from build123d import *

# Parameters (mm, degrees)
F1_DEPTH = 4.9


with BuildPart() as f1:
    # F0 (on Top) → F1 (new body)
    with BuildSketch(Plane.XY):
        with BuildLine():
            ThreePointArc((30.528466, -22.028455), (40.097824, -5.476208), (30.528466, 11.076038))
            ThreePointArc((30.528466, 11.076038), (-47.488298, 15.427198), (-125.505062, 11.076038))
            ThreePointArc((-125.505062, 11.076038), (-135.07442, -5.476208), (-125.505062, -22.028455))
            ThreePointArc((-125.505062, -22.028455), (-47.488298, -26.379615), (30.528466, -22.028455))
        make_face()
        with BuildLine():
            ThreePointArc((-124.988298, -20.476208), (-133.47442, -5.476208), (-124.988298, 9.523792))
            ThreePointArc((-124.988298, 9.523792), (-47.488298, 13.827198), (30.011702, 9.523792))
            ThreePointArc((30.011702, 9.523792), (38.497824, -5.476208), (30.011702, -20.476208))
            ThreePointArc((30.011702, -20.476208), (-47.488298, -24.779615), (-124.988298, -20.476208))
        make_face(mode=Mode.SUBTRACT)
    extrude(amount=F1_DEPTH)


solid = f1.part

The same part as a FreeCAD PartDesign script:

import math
import FreeCAD as App
import Part
import Sketcher

V = App.Vector

doc = App.newDocument("Part")
body = doc.addObject("PartDesign::Body", "Body")

sketch1 = body.newObject("Sketcher::SketchObject", "Sketch")
sketch1.AttachmentSupport = (doc.getObject("XY_Plane"), [""])
sketch1.MapMode = "FlatFace"
sketch1.addGeometry([
    Part.ArcOfCircle(Part.Circle(V(20.997824, -5.476209, 0), V(0, 0, 1), 19.1), math.radians(-60.06703), math.radians(60.06703)),
    Part.ArcOfCircle(Part.Circle(V(-47.488298, -686.172842, 0), V(0, 0, 1), 701.60004), math.radians(83.6156), math.radians(96.3844)),
    Part.ArcOfCircle(Part.Circle(V(-115.97442, -5.476209, 0), V(0, 0, 1), 19.1), math.radians(119.93297), math.radians(240.06703)),
    Part.ArcOfCircle(Part.Circle(V(-47.488298, 675.220425, 0), V(0, 0, 1), 701.60004), math.radians(-96.3844), math.radians(-83.6156)),
    Part.ArcOfCircle(Part.Circle(V(-47.488298, 675.220328, 0), V(0, 0, 1), 699.999943), math.radians(-96.356493), math.radians(-83.643507)),
    Part.ArcOfCircle(Part.Circle(V(-115.97442, -5.476208, 0), V(0, 0, 1), 17.5), math.radians(121.002718), math.radians(238.997282)),
    Part.ArcOfCircle(Part.Circle(V(-47.488298, -686.172907, 0), V(0, 0, 1), 700.000105), math.radians(83.643508), math.radians(96.356492)),
    Part.ArcOfCircle(Part.Circle(V(20.997824, -5.476208, 0), V(0, 0, 1), 17.5), math.radians(-58.997282), math.radians(58.997282)),
], False)
sketch1.addConstraint([
    Sketcher.Constraint("Coincident", 0, 2, 1, 1),
    Sketcher.Constraint("Coincident", 1, 2, 2, 1),
    Sketcher.Constraint("Coincident", 2, 2, 3, 1),
    Sketcher.Constraint("Coincident", 3, 2, 0, 1),
    Sketcher.Constraint("Coincident", 4, 1, 5, 2),
    Sketcher.Constraint("Coincident", 5, 1, 6, 2),
    Sketcher.Constraint("Coincident", 6, 1, 7, 2),
    Sketcher.Constraint("Coincident", 7, 1, 4, 2),
    Sketcher.Constraint("Coincident", 5, 3, 2, 3),
    Sketcher.Constraint("Coincident", 7, 3, 0, 3),
    Sketcher.Constraint("Radius", 0, 19.1),
    Sketcher.Constraint("Radius", 2, 19.1),
    Sketcher.Constraint("Radius", 5, 17.5),
    Sketcher.Constraint("Radius", 7, 17.5),
    Sketcher.Constraint("DistanceY", 4, 1, 2, 3, 14.999999),
    Sketcher.Constraint("DistanceY", 4, 1, 0, 3, 14.999999),
    Sketcher.Constraint("DistanceY", 5, 3, 5, 1, 15.0),
    Sketcher.Constraint("DistanceY", 7, 3, 6, 1, 15.0),
    Sketcher.Constraint("DistanceY", 7, 1, 0, 3, 15.0),
    Sketcher.Constraint("Radius", 1, 701.60004),
    Sketcher.Constraint("Radius", 3, 701.60004),
    Sketcher.Constraint("Radius", 4, 699.999943),
    Sketcher.Constraint("Radius", 6, 700.000105),
    Sketcher.Constraint("DistanceX", 5, 1, -1, 1, 124.988298),
    Sketcher.Constraint("DistanceY", 6, 3, 0, 3, 680.696698),
    Sketcher.Constraint("DistanceY", 0, 3, -1, 1, 5.476209),
    Sketcher.Constraint("DistanceY", 1, 3, -1, 1, 686.172842),
    Sketcher.Constraint("DistanceY", -1, 1, 0, 2, 11.076038),
    Sketcher.Constraint("DistanceX", 3, 3, 0, 3, 68.486122),
    Sketcher.Constraint("DistanceX", 2, 2, 5, 3, 9.530642),
])
pad1 = body.newObject("PartDesign::Pad", "Pad")
pad1.Profile = sketch1
pad1.Length = 4.9

doc.recompute()
